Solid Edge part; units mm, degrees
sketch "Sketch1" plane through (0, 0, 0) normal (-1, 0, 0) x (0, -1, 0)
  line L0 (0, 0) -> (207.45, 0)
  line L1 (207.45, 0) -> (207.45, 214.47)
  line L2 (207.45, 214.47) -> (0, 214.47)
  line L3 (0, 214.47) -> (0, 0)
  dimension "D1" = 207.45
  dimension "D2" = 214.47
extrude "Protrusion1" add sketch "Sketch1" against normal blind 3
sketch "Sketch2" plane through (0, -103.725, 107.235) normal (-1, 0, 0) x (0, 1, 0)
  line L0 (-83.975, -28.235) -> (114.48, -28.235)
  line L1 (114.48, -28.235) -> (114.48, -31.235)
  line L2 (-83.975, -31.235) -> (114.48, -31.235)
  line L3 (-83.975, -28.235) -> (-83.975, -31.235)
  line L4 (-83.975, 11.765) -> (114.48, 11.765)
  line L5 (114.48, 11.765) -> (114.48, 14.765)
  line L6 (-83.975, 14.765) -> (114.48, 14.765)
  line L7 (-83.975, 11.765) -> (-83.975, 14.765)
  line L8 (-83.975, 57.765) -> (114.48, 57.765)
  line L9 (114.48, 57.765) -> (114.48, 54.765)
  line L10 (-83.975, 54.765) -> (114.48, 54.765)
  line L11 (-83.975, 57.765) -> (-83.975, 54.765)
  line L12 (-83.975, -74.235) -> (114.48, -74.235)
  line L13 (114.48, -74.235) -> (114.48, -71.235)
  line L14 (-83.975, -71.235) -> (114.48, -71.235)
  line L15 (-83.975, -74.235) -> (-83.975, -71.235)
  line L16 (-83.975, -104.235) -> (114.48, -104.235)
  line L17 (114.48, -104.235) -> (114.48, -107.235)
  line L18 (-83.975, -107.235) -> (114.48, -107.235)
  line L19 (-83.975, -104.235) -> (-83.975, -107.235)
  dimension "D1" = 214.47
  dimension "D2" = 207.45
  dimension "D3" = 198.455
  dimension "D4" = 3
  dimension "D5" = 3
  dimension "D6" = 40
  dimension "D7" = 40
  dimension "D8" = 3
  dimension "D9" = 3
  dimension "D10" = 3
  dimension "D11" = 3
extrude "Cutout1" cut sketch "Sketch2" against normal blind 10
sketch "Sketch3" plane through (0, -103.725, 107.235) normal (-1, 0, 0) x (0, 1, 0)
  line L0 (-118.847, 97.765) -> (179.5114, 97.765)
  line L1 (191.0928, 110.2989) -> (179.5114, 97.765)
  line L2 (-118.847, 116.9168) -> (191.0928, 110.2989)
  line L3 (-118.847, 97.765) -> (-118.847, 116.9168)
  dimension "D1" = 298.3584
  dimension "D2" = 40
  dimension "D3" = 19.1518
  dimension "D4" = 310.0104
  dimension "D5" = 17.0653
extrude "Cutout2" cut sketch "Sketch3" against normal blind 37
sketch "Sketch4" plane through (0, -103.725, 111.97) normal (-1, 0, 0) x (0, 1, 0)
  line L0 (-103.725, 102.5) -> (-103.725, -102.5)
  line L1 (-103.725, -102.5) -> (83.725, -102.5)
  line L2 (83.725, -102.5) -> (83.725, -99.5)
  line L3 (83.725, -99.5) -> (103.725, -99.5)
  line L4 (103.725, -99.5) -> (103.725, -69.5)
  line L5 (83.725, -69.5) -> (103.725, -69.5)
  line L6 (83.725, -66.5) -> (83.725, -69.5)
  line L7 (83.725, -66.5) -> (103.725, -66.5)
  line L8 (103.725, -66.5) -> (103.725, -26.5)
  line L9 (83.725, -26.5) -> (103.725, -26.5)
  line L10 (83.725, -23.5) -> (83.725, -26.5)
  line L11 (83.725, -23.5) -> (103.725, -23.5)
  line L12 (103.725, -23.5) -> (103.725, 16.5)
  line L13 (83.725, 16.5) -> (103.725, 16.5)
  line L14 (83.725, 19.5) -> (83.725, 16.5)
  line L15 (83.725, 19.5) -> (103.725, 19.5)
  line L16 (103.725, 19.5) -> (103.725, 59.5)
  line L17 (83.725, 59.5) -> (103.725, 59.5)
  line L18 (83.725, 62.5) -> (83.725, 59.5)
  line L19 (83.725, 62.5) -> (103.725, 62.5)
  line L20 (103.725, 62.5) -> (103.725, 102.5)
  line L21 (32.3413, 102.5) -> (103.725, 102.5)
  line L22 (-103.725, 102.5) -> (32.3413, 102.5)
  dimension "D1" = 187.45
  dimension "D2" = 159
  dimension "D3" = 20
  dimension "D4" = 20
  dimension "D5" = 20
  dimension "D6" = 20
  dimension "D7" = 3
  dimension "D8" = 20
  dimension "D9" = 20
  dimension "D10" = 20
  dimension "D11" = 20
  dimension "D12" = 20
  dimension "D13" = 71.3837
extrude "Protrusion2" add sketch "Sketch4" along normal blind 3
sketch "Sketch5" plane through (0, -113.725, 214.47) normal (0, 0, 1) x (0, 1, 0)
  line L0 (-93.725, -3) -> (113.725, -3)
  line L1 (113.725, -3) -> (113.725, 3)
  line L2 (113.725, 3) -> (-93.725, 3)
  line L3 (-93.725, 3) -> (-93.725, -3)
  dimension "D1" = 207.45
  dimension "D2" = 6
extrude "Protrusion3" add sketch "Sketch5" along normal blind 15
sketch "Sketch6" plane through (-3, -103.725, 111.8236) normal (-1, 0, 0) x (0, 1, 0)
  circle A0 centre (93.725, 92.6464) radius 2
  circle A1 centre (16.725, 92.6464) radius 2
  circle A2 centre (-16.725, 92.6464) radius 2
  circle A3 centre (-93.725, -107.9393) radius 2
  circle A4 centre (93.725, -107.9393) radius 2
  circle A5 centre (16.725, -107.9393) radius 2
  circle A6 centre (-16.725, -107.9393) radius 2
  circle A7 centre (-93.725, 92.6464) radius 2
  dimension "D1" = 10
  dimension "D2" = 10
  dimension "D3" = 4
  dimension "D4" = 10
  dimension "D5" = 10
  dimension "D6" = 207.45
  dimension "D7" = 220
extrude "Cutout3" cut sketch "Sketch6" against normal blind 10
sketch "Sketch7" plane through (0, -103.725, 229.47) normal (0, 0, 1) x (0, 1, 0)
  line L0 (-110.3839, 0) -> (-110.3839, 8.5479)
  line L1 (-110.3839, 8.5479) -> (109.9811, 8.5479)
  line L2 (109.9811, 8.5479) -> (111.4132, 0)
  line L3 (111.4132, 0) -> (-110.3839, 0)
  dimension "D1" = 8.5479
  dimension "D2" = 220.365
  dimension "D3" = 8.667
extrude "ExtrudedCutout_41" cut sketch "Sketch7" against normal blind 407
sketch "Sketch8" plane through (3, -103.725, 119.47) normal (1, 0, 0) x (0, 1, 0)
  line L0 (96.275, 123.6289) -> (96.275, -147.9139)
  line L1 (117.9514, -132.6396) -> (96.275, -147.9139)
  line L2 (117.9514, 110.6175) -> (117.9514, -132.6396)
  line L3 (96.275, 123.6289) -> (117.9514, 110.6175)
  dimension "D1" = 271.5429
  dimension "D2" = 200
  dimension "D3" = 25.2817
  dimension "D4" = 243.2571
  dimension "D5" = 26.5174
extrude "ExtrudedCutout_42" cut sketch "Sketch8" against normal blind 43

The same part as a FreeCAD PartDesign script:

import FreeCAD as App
import Part
import Sketcher

V = App.Vector
Q = App.Units.Quantity

doc = App.newDocument("Part")
params = doc.addObject("Spreadsheet::Sheet", "Params")
for row, (alias, value) in enumerate([
    ("sketch1_width", "207.45 mm"),
    ("sketch1_height", "214.47 mm"),
    ("pad1_length", "3 mm"),
    ("sketch2_height", "3 mm"),
    ("pocket1_length", "10 mm"),
    ("pocket2_length", "37 mm"),
    ("sketch4_width", "20 mm"),
    ("sketch4_height", "205 mm"),
    ("sketch4_height2", "3 mm"),
    ("sketch4_height3", "30 mm"),
    ("sketch4_width2", "207.45 mm"),
    ("pad2_length", "3 mm"),
    ("sketch5_width", "6 mm"),
    ("sketch5_height", "207.45 mm"),
    ("pad3_length", "15 mm"),
    ("sketch6_diameter", "4 mm"),
    ("pocket3_length", "10 mm"),
    ("pocket4_length", "407 mm"),
    ("pocket5_length", "43 mm"),
], start=1):
    params.set(f"A{row}", alias)
    params.set(f"B{row}", "=" + value)
    params.setAlias(f"B{row}", alias)

body = doc.addObject("PartDesign::Body", "Body")

# Sketch on YZ plane
sketch1 = doc.addObject("Sketcher::SketchObject", "Sketch")
body.addObject(sketch1)
sketch1.AttachmentSupport = (doc.YZ_Plane, [""])
sketch1.MapMode = "FlatFace"
sketch1.addGeometry([
    Part.LineSegment(V(0, 214, 0), V(0, 0, 0)),
    Part.LineSegment(V(0, 0, 0), V(-207, 0, 0)),
    Part.LineSegment(V(-207, 0, 0), V(-207, 214, 0)),
    Part.LineSegment(V(-207, 214, 0), V(0, 214, 0)),
], False)
sketch1.addConstraint([
    Sketcher.Constraint("Coincident", 0, 2, 1, 1),
    Sketcher.Constraint("Coincident", 1, 2, 2, 1),
    Sketcher.Constraint("Coincident", 2, 2, 3, 1),
    Sketcher.Constraint("Coincident", 3, 2, 0, 1),
    Sketcher.Constraint("Vertical", 0),
    Sketcher.Constraint("Horizontal", 1),
    Sketcher.Constraint("Vertical", 2),
    Sketcher.Constraint("Horizontal", 3),
    Sketcher.Constraint("Coincident", 0, 2, -1, 1),
    Sketcher.Constraint("DistanceX", 1, 2, 1, 1, Q("207.45 mm")),
    Sketcher.Constraint("DistanceY", 0, 2, 0, 1, Q("214.47 mm")),
])
sketch1.setExpression("Constraints[9]", "Params.sketch1_width")
sketch1.setExpression("Constraints[10]", "Params.sketch1_height")
pad1 = doc.addObject("PartDesign::Pad", "Pad")
body.addObject(pad1)
pad1.Profile = sketch1
pad1.setExpression("Length", "Params.pad1_length")

# Sketch on YZ plane
sketch2 = doc.addObject("Sketcher::SketchObject", "Sketch001")
body.addObject(sketch2)
sketch2.AttachmentSupport = (doc.YZ_Plane, [""])
sketch2.MapMode = "FlatFace"
sketch2.addGeometry([
    Part.LineSegment(V(10.8, 135.5, 0), V(-187.7, 135.5, 0)),  # 0
    Part.LineSegment(V(-187.7, 135.5, 0), V(-187.7, 138.5, 0)),  # 1
    Part.LineSegment(V(-187.7, 138.5, 0), V(10.8, 138.5, 0)),  # 2
    Part.LineSegment(V(10.8, 138.5, 0), V(10.8, 135.5, 0)),  # 3
    Part.LineSegment(V(-187.7, 92.5, 0), V(-187.7, 95.5, 0)),  # 4
    Part.LineSegment(V(-187.7, 95.5, 0), V(10.8, 95.5, 0)),  # 5
    Part.LineSegment(V(10.8, 95.5, 0), V(10.8, 92.5, 0)),  # 6
    Part.LineSegment(V(10.8, 92.5, 0), V(-187.7, 92.5, 0)),  # 7
    Part.LineSegment(V(10.8, 49.5, 0), V(-187.7, 49.5, 0)),  # 8
    Part.LineSegment(V(-187.7, 49.5, 0), V(-187.7, 52.5, 0)),  # 9
    Part.LineSegment(V(-187.7, 52.5, 0), V(10.8, 52.5, 0)),  # 10
    Part.LineSegment(V(10.8, 52.5, 0), V(10.8, 49.5, 0)),  # 11
    Part.LineSegment(V(-187.7, 178.5, 0), V(-187.7, 181.5, 0)),  # 12
    Part.LineSegment(V(-187.7, 181.5, 0), V(10.8, 181.5, 0)),  # 13
    Part.LineSegment(V(10.8, 181.5, 0), V(10.8, 178.5, 0)),  # 14
    Part.LineSegment(V(10.8, 178.5, 0), V(-187.7, 178.5, 0)),  # 15
    Part.LineSegment(V(10.8, 211.5, 0), V(-187.7, 211.5, 0)),  # 16
    Part.LineSegment(V(-187.7, 211.5, 0), V(-187.7, 214.5, 0)),  # 17
    Part.LineSegment(V(-187.7, 214.5, 0), V(10.8, 214.5, 0)),  # 18
    Part.LineSegment(V(10.8, 214.5, 0), V(10.8, 211.5, 0)),  # 19
], False)
sketch2.addConstraint([
    Sketcher.Constraint("Coincident", 0, 2, 1, 1),
    Sketcher.Constraint("Coincident", 1, 2, 2, 1),
    Sketcher.Constraint("Coincident", 2, 2, 3, 1),
    Sketcher.Constraint("Coincident", 3, 2, 0, 1),
    Sketcher.Constraint("Coincident", 4, 2, 5, 1),
    Sketcher.Constraint("Coincident", 5, 2, 6, 1),
    Sketcher.Constraint("Coincident", 6, 2, 7, 1),
    Sketcher.Constraint("Coincident", 7, 2, 4, 1),
    Sketcher.Constraint("Coincident", 8, 2, 9, 1),
    Sketcher.Constraint("Coincident", 9, 2, 10, 1),
    Sketcher.Constraint("Coincident", 10, 2, 11, 1),
    Sketcher.Constraint("Coincident", 11, 2, 8, 1),
    Sketcher.Constraint("Coincident", 12, 2, 13, 1),
    Sketcher.Constraint("Coincident", 13, 2, 14, 1),
    Sketcher.Constraint("Coincident", 14, 2, 15, 1),
    Sketcher.Constraint("Coincident", 15, 2, 12, 1),
    Sketcher.Constraint("Coincident", 16, 2, 17, 1),
    Sketcher.Constraint("Coincident", 17, 2, 18, 1),
    Sketcher.Constraint("Coincident", 18, 2, 19, 1),
    Sketcher.Constraint("Coincident", 19, 2, 16, 1),
    Sketcher.Constraint("Horizontal", 0),
    Sketcher.Constraint("Vertical", 1),
    Sketcher.Constraint("Horizontal", 2),
    Sketcher.Constraint("Vertical", 3),
    Sketcher.Constraint("Vertical", 4),
    Sketcher.Constraint("Horizontal", 5),
    Sketcher.Constraint("Vertical", 6),
    Sketcher.Constraint("Horizontal", 7),
    Sketcher.Constraint("Horizontal", 8),
    Sketcher.Constraint("Vertical", 9),
    Sketcher.Constraint("Horizontal", 10),
    Sketcher.Constraint("Vertical", 11),
    Sketcher.Constraint("Vertical", 12),
    Sketcher.Constraint("Horizontal", 13),
    Sketcher.Constraint("Vertical", 14),
    Sketcher.Constraint("Horizontal", 15),
    Sketcher.Constraint("Horizontal", 16),
    Sketcher.Constraint("Vertical", 17),
    Sketcher.Constraint("Horizontal", 18),
    Sketcher.Constraint("Vertical", 19),
    Sketcher.Constraint("Vertical", 1, 2, 4, 2),
    Sketcher.Constraint("Vertical", 3, 2, 5, 2),
    Sketcher.Constraint("Vertical", 7, 2, 8, 2),
    Sketcher.Constraint("Vertical", 6, 2, 10, 2),
    Sketcher.Constraint("Vertical", 9, 2, 12, 2),
    Sketcher.Constraint("Vertical", 11, 2, 13, 2),
    Sketcher.Constraint("Vertical", 15, 2, 16, 2),
    Sketcher.Constraint("Vertical", 14, 2, 18, 2),
    Sketcher.Constraint("Equal", 3, 4),
    Sketcher.Constraint("Equal", 6, 9),
    Sketcher.Constraint("Equal", 11, 12),
    Sketcher.Constraint("Equal", 14, 17),
    Sketcher.Constraint("DistanceY", 1, 1, 1, 2, Q("3 mm")),
    Sketcher.Constraint("DistanceY", 4, 2, 0, 2, Q("40 mm")),
    Sketcher.Constraint("DistanceY", 8, 2, 7, 2, Q("43 mm")),
    Sketcher.Constraint("DistanceY", 1, 2, 12, 2, Q("43 mm")),
    Sketcher.Constraint("DistanceY", 12, 2, 16, 2, Q("30 mm")),
    Sketcher.Constraint("DistanceX", 0, 2, -1, 1, Q("187.7 mm")),
    Sketcher.Constraint("DistanceX", 0, 2, 0, 1, Q("198.455 mm")),
    Sketcher.Constraint("DistanceY", -1, 1, 0, 2, Q("135.47 mm")),
])
sketch2.setExpression("Constraints[52]", "Params.sketch2_height")
pocket1 = doc.addObject("PartDesign::Pocket", "Pocket")
body.addObject(pocket1)
pocket1.Profile = sketch2
pocket1.setExpression("Length", "Params.pocket1_length")
pocket1.Reversed = True

# Sketch on YZ plane
sketch3 = doc.addObject("Sketcher::SketchObject", "Sketch002")
body.addObject(sketch3)
sketch3.AttachmentSupport = (doc.YZ_Plane, [""])
sketch3.MapMode = "FlatFace"
sketch3.addGeometry([
    Part.LineSegment(V(-223, -10, 0), V(-223, 9, 0)),
    Part.LineSegment(V(-223, 9, 0), V(76, 9, 0)),
    Part.LineSegment(V(76, 9, 0), V(87, -3, 0)),
    Part.LineSegment(V(87, -3, 0), V(-223, -10, 0)),
], False)
sketch3.addConstraint([
    Sketcher.Constraint("Coincident", 0, 2, 1, 1),
    Sketcher.Constraint("Coincident", 1, 2, 2, 1),
    Sketcher.Constraint("Coincident", 2, 2, 3, 1),
    Sketcher.Constraint("Coincident", 3, 2, 0, 1),
    Sketcher.Constraint("Vertical", 0),
    Sketcher.Constraint("Horizontal", 1),
    Sketcher.Constraint("DistanceY", -1, 1, 0, 2, Q("9.47 mm")),
    Sketcher.Constraint("DistanceX", 1, 1, 1, 2, Q("298.3584 mm")),
    Sketcher.Constraint("DistanceY", 0, 1, 0, 2, Q("19.1518 mm")),
    Sketcher.Constraint("DistanceX", 0, 2, -1, 1, Q("222.572 mm")),
    Sketcher.Constraint("DistanceY", 2, 2, -1, 1, Q("3.064 mm")),
    Sketcher.Constraint("Distance", 2, Q("17.0654 mm")),
])
pocket2 = doc.addObject("PartDesign::Pocket", "Pocket001")
body.addObject(pocket2)
pocket2.Profile = sketch3
pocket2.setExpression("Length", "Params.pocket2_length")
pocket2.Reversed = True

# Sketch on YZ plane
sketch4 = doc.addObject("Sketcher::SketchObject", "Sketch003")
body.addObject(sketch4)
sketch4.AttachmentSupport = (doc.YZ_Plane, [""])
sketch4.MapMode = "FlatFace"
sketch4.addGeometry([
    Part.LineSegment(V(0, 9.5, 0), V(-207.4, 9.5, 0)),  # 0
    Part.LineSegment(V(-207.4, 9.5, 0), V(-207.4, 214.5, 0)),  # 1
    Part.LineSegment(V(-207.4, 214.5, 0), V(-20, 214.5, 0)),  # 2
    Part.LineSegment(V(-20, 214.5, 0), V(-20, 211.5, 0)),  # 3
    Part.LineSegment(V(-20, 211.5, 0), V(0, 211.5, 0)),  # 4
    Part.LineSegment(V(0, 211.5, 0), V(0, 181.5, 0)),  # 5
    Part.LineSegment(V(0, 181.5, 0), V(-20, 181.5, 0)),  # 6
    Part.LineSegment(V(-20, 181.5, 0), V(-20, 178.5, 0)),  # 7
    Part.LineSegment(V(-20, 178.5, 0), V(0, 178.5, 0)),  # 8
    Part.LineSegment(V(0, 178.5, 0), V(0, 138.5, 0)),  # 9
    Part.LineSegment(V(0, 138.5, 0), V(-20, 138.5, 0)),  # 10
    Part.LineSegment(V(-20, 138.5, 0), V(-20, 135.5, 0)),  # 11
    Part.LineSegment(V(-20, 135.5, 0), V(0, 135.5, 0)),  # 12
    Part.LineSegment(V(0, 135.5, 0), V(0, 95.5, 0)),  # 13
    Part.LineSegment(V(0, 95.5, 0), V(-20, 95.5, 0)),  # 14
    Part.LineSegment(V(-20, 95.5, 0), V(-20, 92.5, 0)),  # 15
    Part.LineSegment(V(-20, 92.5, 0), V(0, 92.5, 0)),  # 16
    Part.LineSegment(V(0, 92.5, 0), V(0, 52.5, 0)),  # 17
    Part.LineSegment(V(0, 52.5, 0), V(-20, 52.5, 0)),  # 18
    Part.LineSegment(V(-20, 52.5, 0), V(-20, 49.5, 0)),  # 19
    Part.LineSegment(V(-20, 49.5, 0), V(0, 49.5, 0)),  # 20
    Part.LineSegment(V(0, 49.5, 0), V(0, 9.5, 0)),  # 21
], False)
sketch4.addConstraint([
    Sketcher.Constraint("Coincident", 0, 2, 1, 1),
    Sketcher.Constraint("Coincident", 1, 2, 2, 1),
    Sketcher.Constraint("Coincident", 2, 2, 3, 1),
    Sketcher.Constraint("Coincident", 3, 2, 4, 1),
    Sketcher.Constraint("Coincident", 4, 2, 5, 1),
    Sketcher.Constraint("Coincident", 5, 2, 6, 1),
    Sketcher.Constraint("Coincident", 6, 2, 7, 1),
    Sketcher.Constraint("Coincident", 7, 2, 8, 1),
    Sketcher.Constraint("Coincident", 8, 2, 9, 1),
    Sketcher.Constraint("Coincident", 9, 2, 10, 1),
    Sketcher.Constraint("Coincident", 10, 2, 11, 1),
    Sketcher.Constraint("Coincident", 11, 2, 12, 1),
    Sketcher.Constraint("Coincident", 12, 2, 13, 1),
    Sketcher.Constraint("Coincident", 13, 2, 14, 1),
    Sketcher.Constraint("Coincident", 14, 2, 15, 1),
    Sketcher.Constraint("Coincident", 15, 2, 16, 1),
    Sketcher.Constraint("Coincident", 16, 2, 17, 1),
    Sketcher.Constraint("Coincident", 17, 2, 18, 1),
    Sketcher.Constraint("Coincident", 18, 2, 19, 1),
    Sketcher.Constraint("Coincident", 19, 2, 20, 1),
    Sketcher.Constraint("Coincident", 20, 2, 21, 1),
    Sketcher.Constraint("Coincident", 21, 2, 0, 1),
    Sketcher.Constraint("Horizontal", 0),
    Sketcher.Constraint("Vertical", 1),
    Sketcher.Constraint("Horizontal", 2),
    Sketcher.Constraint("Vertical", 3),
    Sketcher.Constraint("Horizontal", 4),
    Sketcher.Constraint("Vertical", 5),
    Sketcher.Constraint("Horizontal", 6),
    Sketcher.Constraint("Vertical", 7),
    Sketcher.Constraint("Horizontal", 8),
    Sketcher.Constraint("Vertical", 9),
    Sketcher.Constraint("Horizontal", 10),
    Sketcher.Constraint("Vertical", 11),
    Sketcher.Constraint("Horizontal", 12),
    Sketcher.Constraint("Vertical", 13),
    Sketcher.Constraint("Horizontal", 14),
    Sketcher.Constraint("Vertical", 15),
    Sketcher.Constraint("Horizontal", 16),
    Sketcher.Constraint("Vertical", 17),
    Sketcher.Constraint("Horizontal", 18),
    Sketcher.Constraint("Vertical", 19),
    Sketcher.Constraint("Horizontal", 20),
    Sketcher.Constraint("Vertical", 21),
    Sketcher.Constraint("PointOnObject", 4, 2, -2),
    Sketcher.Constraint("PointOnObject", 8, 2, -2),
    Sketcher.Constraint("PointOnObject", 12, 2, -2),
    Sketcher.Constraint("PointOnObject", 16, 2, -2),
    Sketcher.Constraint("PointOnObject", 20, 2, -2),
    Sketcher.Constraint("Vertical", 3, 2, 6, 2),
    Sketcher.Constraint("Vertical", 7, 2, 10, 2),
    Sketcher.Constraint("Vertical", 11, 2, 14, 2),
    Sketcher.Constraint("Vertical", 15, 2, 18, 2),
    Sketcher.Constraint("Equal", 3, 7),
    Sketcher.Constraint("Equal", 7, 11),
    Sketcher.Constraint("Equal", 9, 13),
    Sketcher.Constraint("Equal", 11, 15),
    Sketcher.Constraint("Equal", 13, 17),
    Sketcher.Constraint("Equal", 15, 19),
    Sketcher.Constraint("Equal", 17, 21),
    Sketcher.Constraint("DistanceX", 4, 1, 4, 2, Q("20 mm")),
    Sketcher.Constraint("DistanceY", 1, 1, 1, 2, Q("205 mm")),
    Sketcher.Constraint("DistanceY", 3, 2, 3, 1, Q("3 mm")),
    Sketcher.Constraint("DistanceY", 5, 2, 5, 1, Q("30 mm")),
    Sketcher.Constraint("DistanceX", 0, 2, 0, 1, Q("207.45 mm")),
    Sketcher.Constraint("DistanceY", -1, 1, 0, 2, Q("9.47 mm")),
])
sketch4.setExpression("Constraints[60]", "Params.sketch4_width")
sketch4.setExpression("Constraints[61]", "Params.sketch4_height")
sketch4.setExpression("Constraints[62]", "Params.sketch4_height2")
sketch4.setExpression("Constraints[63]", "Params.sketch4_height3")
sketch4.setExpression("Constraints[64]", "Params.sketch4_width2")
pad2 = doc.addObject("PartDesign::Pad", "Pad001")
body.addObject(pad2)
pad2.Profile = sketch4
pad2.setExpression("Length", "Params.pad2_length")
pad2.Reversed = True

# Sketch on XY plane
sketch5 = doc.addObject("Sketcher::SketchObject", "Sketch004")
body.addObject(sketch5)
sketch5.AttachmentSupport = (doc.XY_Plane, [""])
sketch5.MapMode = "FlatFace"
sketch5.AttachmentOffset = App.Placement(V(0, 0, 214.47), App.Rotation())
sketch5.addGeometry([
    Part.LineSegment(V(-3, -207, 0), V(3, -207, 0)),
    Part.LineSegment(V(3, -207, 0), V(3, 0, 0)),
    Part.LineSegment(V(3, 0, 0), V(-3, 0, 0)),
    Part.LineSegment(V(-3, 0, 0), V(-3, -207, 0)),
], False)
sketch5.addConstraint([
    Sketcher.Constraint("Coincident", 0, 2, 1, 1),
    Sketcher.Constraint("Coincident", 1, 2, 2, 1),
    Sketcher.Constraint("Coincident", 2, 2, 3, 1),
    Sketcher.Constraint("Coincident", 3, 2, 0, 1),
    Sketcher.Constraint("Horizontal", 0),
    Sketcher.Constraint("Vertical", 1),
    Sketcher.Constraint("Horizontal", 2),
    Sketcher.Constraint("Vertical", 3),
    Sketcher.Constraint("Symmetric", 1, 2, 2, 2, -1, 1),
    Sketcher.Constraint("DistanceX", 0, 1, 0, 2, Q("6 mm")),
    Sketcher.Constraint("DistanceY", 1, 1, 1, 2, Q("207.45 mm")),
])
sketch5.setExpression("Constraints[9]", "Params.sketch5_width")
sketch5.setExpression("Constraints[10]", "Params.sketch5_height")
pad3 = doc.addObject("PartDesign::Pad", "Pad002")
body.addObject(pad3)
pad3.Profile = sketch5
pad3.setExpression("Length", "Params.pad3_length")

# Sketch on YZ plane
sketch6 = doc.addObject("Sketcher::SketchObject", "Sketch005")
body.addObject(sketch6)
sketch6.AttachmentSupport = (doc.YZ_Plane, [""])
sketch6.MapMode = "FlatFace"
sketch6.AttachmentOffset = App.Placement(V(0, 0, -3), App.Rotation())
sketch6.addGeometry([
    Part.Circle(V(-10, 19.2, 0), V(0, 0, 1), 2),  # 0
    Part.Circle(V(-87, 19.2, 0), V(0, 0, 1), 2),  # 1
    Part.Circle(V(-120.5, 19.2, 0), V(0, 0, 1), 2),  # 2
    Part.Circle(V(-197.4, 219.8, 0), V(0, 0, 1), 2),  # 3
    Part.Circle(V(-10, 219.8, 0), V(0, 0, 1), 2),  # 4
    Part.Circle(V(-87, 219.8, 0), V(0, 0, 1), 2),  # 5
    Part.Circle(V(-120.5, 219.8, 0), V(0, 0, 1), 2),  # 6
    Part.Circle(V(-197.4, 19.2, 0), V(0, 0, 1), 2),  # 7
], False)
sketch6.addConstraint([
    Sketcher.Constraint("Equal", 0, 1),
    Sketcher.Constraint("Equal", 1, 2),
    Sketcher.Constraint("Equal", 2, 3),
    Sketcher.Constraint("Equal", 3, 4),
    Sketcher.Constraint("Equal", 4, 5),
    Sketcher.Constraint("Equal", 5, 6),
    Sketcher.Constraint("Equal", 6, 7),
    Sketcher.Constraint("Horizontal", 0, 3, 1, 3),
    Sketcher.Constraint("Horizontal", 1, 3, 2, 3),
    Sketcher.Constraint("Horizontal", 3, 3, 4, 3),
    Sketcher.Constraint("Horizontal", 4, 3, 5, 3),
    Sketcher.Constraint("Horizontal", 5, 3, 6, 3),
    Sketcher.Constraint("Horizontal", 2, 3, 7, 3),
    Sketcher.Constraint("Vertical", 0, 3, 4, 3),
    Sketcher.Constraint("Vertical", 1, 3, 5, 3),
    Sketcher.Constraint("Vertical", 2, 3, 6, 3),
    Sketcher.Constraint("Vertical", 3, 3, 7, 3),
    Sketcher.Constraint("Diameter", 0, Q("4 mm")),
    Sketcher.Constraint("DistanceX", 0, 3, -1, 1, Q("10 mm")),
    Sketcher.Constraint("DistanceX", 1, 3, -1, 1, Q("87 mm")),
    Sketcher.Constraint("DistanceX", 3, 3, 2, 3, Q("77 mm")),
    Sketcher.Constraint("DistanceX", 2, 3, -1, 1, Q("120.45 mm")),
    Sketcher.Constraint("DistanceY", -1, 1, 3, 3, Q("219.763 mm")),
    Sketcher.Constraint("DistanceY", -1, 1, 0, 3, Q("19.1772 mm")),
])
sketch6.setExpression("Constraints[17]", "Params.sketch6_diameter")
pocket3 = doc.addObject("PartDesign::Pocket", "Pocket002")
body.addObject(pocket3)
pocket3.Profile = sketch6
pocket3.setExpression("Length", "Params.pocket3_length")
pocket3.Reversed = True

# Sketch on XY plane
sketch7 = doc.addObject("Sketcher::SketchObject", "Sketch006")
body.addObject(sketch7)
sketch7.AttachmentSupport = (doc.XY_Plane, [""])
sketch7.MapMode = "FlatFace"
sketch7.AttachmentOffset = App.Placement(V(0, 0, 229.47), App.Rotation())
sketch7.addGeometry([
    Part.LineSegment(V(-9, -214, 0), V(0, -214, 0)),
    Part.LineSegment(V(0, -214, 0), V(0, 8, 0)),
    Part.LineSegment(V(0, 8, 0), V(-9, 6, 0)),
    Part.LineSegment(V(-9, 6, 0), V(-9, -214, 0)),
], False)
sketch7.addConstraint([
    Sketcher.Constraint("Coincident", 0, 2, 1, 1),
    Sketcher.Constraint("Coincident", 1, 2, 2, 1),
    Sketcher.Constraint("Coincident", 2, 2, 3, 1),
    Sketcher.Constraint("Coincident", 3, 2, 0, 1),
    Sketcher.Constraint("Horizontal", 0),
    Sketcher.Constraint("Vertical", 1),
    Sketcher.Constraint("Vertical", 3),
    Sketcher.Constraint("PointOnObject", 0, 2, -2),
    Sketcher.Constraint("Angle", 2, Q("-170.489 deg")),
    Sketcher.Constraint("DistanceX", 0, 1, 0, 2, Q("8.548 mm")),
    Sketcher.Constraint("DistanceY", 1, 1, 1, 2, Q("221.797 mm")),
    Sketcher.Constraint("DistanceY", 0, 2, -1, 1, Q("214.109 mm")),
])
pocket4 = doc.addObject("PartDesign::Pocket", "Pocket003")
body.addObject(pocket4)
pocket4.Profile = sketch7
pocket4.setExpression("Length", "Params.pocket4_length")

# Sketch on YZ plane
sketch8 = doc.addObject("Sketcher::SketchObject", "Sketch007")
body.addObject(sketch8)
sketch8.AttachmentSupport = (doc.YZ_Plane, [""])
sketch8.MapMode = "FlatFace"
sketch8.AttachmentOffset = App.Placement(V(0, 0, 3), App.Rotation())
sketch8.addGeometry([
    Part.LineSegment(V(14, 230, 0), V(-7, 243, 0)),
    Part.LineSegment(V(-7, 243, 0), V(-7, -28, 0)),
    Part.LineSegment(V(-7, -28, 0), V(14, -13, 0)),
    Part.LineSegment(V(14, -13, 0), V(14, 230, 0)),
], False)
sketch8.addConstraint([
    Sketcher.Constraint("Coincident", 0, 2, 1, 1),
    Sketcher.Constraint("Coincident", 1, 2, 2, 1),
    Sketcher.Constraint("Coincident", 2, 2, 3, 1),
    Sketcher.Constraint("Coincident", 3, 2, 0, 1),
    Sketcher.Constraint("Vertical", 1),
    Sketcher.Constraint("Vertical", 3),
    Sketcher.Constraint("Angle", 2, Q("35.1705 deg")),
    Sketcher.Constraint("DistanceY", 3, 1, 3, 2, Q("243.257 mm")),
    Sketcher.Constraint("DistanceX", 0, 2, -1, 1, Q("7.45 mm")),
    Sketcher.Constraint("DistanceY", 1, 2, 1, 1, Q("271.5428 mm")),
    Sketcher.Constraint("DistanceY", -1, 1, 0, 2, Q("243.099 mm")),
    Sketcher.Constraint("Distance", 0, Q("25.2817 mm")),
])
pocket5 = doc.addObject("PartDesign::Pocket", "Pocket004")
body.addObject(pocket5)
pocket5.Profile = sketch8
pocket5.setExpression("Length", "Params.pocket5_length")

doc.recompute()
